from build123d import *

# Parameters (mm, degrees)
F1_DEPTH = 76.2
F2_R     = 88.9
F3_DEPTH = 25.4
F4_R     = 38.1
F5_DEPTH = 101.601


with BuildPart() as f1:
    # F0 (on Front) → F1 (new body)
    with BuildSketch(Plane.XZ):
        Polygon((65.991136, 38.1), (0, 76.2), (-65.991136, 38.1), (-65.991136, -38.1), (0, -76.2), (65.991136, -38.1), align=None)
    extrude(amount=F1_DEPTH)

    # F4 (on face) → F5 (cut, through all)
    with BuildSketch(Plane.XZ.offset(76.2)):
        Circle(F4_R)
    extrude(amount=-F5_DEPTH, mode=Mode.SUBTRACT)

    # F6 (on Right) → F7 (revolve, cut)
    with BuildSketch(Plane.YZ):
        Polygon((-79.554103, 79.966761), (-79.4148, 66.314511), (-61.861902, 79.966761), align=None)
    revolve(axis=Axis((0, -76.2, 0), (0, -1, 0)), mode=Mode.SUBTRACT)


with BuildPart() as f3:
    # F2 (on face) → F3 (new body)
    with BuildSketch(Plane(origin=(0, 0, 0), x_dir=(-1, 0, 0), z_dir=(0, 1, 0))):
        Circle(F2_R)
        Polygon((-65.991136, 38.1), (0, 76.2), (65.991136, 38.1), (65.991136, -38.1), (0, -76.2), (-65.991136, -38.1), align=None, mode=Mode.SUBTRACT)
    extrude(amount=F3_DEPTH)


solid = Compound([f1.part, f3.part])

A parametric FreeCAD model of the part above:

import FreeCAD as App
import Part
import Sketcher
from FreeCAD import Vector
Q = App.Units.Quantity

doc = App.newDocument("Part")
body = doc.addObject("PartDesign::Body", "Body")

# Sketch on XZ plane
sketch1 = body.newObject("Sketcher::SketchObject", "Sketch")
sketch1.AttachmentSupport = (doc.getObject("XZ_Plane"), [""])
sketch1.MapMode = "FlatFace"
sketch1.addGeometry(Part.LineSegment(Vector(66, 38, 0), Vector(0, 76, 0)), False)
sketch1.addGeometry(Part.LineSegment(Vector(0, 76, 0), Vector(-66, 38, 0)), False)
sketch1.addGeometry(Part.LineSegment(Vector(-66, 38, 0), Vector(-66, -38, 0)), False)
sketch1.addGeometry(Part.LineSegment(Vector(-66, -38, 0), Vector(0, -76, 0)), False)
sketch1.addGeometry(Part.LineSegment(Vector(0, -76, 0), Vector(66, -38, 0)), False)
sketch1.addGeometry(Part.LineSegment(Vector(66, -38, 0), Vector(66, 38, 0)), False)
sketch1.addConstraint(Sketcher.Constraint("Coincident", 0, 2, 1, 1))
sketch1.addConstraint(Sketcher.Constraint("Coincident", 1, 2, 2, 1))
sketch1.addConstraint(Sketcher.Constraint("Coincident", 2, 2, 3, 1))
sketch1.addConstraint(Sketcher.Constraint("Coincident", 3, 2, 4, 1))
sketch1.addConstraint(Sketcher.Constraint("Coincident", 4, 2, 5, 1))
sketch1.addConstraint(Sketcher.Constraint("Coincident", 5, 2, 0, 1))
sketch1.addConstraint(Sketcher.Constraint("Vertical", 2))
sketch1.addConstraint(Sketcher.Constraint("Vertical", 5))
sketch1.addConstraint(Sketcher.Constraint("Symmetric", 0, 2, 3, 2, -1, 1))
sketch1.addConstraint(Sketcher.Constraint("Symmetric", 1, 2, 4, 2, -1, 1))
sketch1.addConstraint(Sketcher.Constraint("PointOnObject", 0, 2, -2))
sketch1.addConstraint(Sketcher.Constraint("Parallel", 0, 3))
sketch1.addConstraint(Sketcher.Constraint("Horizontal", 2, 2, 4, 2))
sketch1.addConstraint(Sketcher.Constraint("DistanceY", 2, 2, 2, 1, Q("3 in")))
sketch1.addConstraint(Sketcher.Constraint("Distance", 0, Q("3 in")))
sketch1.addConstraint(Sketcher.Constraint("DistanceY", -1, 1, 0, 2, Q("3 in")))
pad1 = body.newObject("PartDesign::Pad", "Pad")
pad1.Profile = sketch1
pad1.Length = Q("3 in")

# Sketch on XZ plane
sketch2 = body.newObject("Sketcher::SketchObject", "Sketch001")
sketch2.AttachmentSupport = (doc.getObject("XZ_Plane"), [""])
sketch2.MapMode = "FlatFace"
sketch2.AttachmentOffset = App.Placement(Vector(0, 0, 3 * 25.4), App.Rotation())
sketch2.addGeometry(Part.Circle(Vector(0, 0, 0), Vector(0, 0, 1), 38), False)
sketch2.addConstraint(Sketcher.Constraint("Coincident", 0, 3, -1, 1))
sketch2.addConstraint(Sketcher.Constraint("Diameter", 0, Q("3 in")))
pocket1 = body.newObject("PartDesign::Pocket", "Pocket")
pocket1.Profile = sketch2
pocket1.Type = "ThroughAll"

# Sketch on YZ plane
sketch3 = body.newObject("Sketcher::SketchObject", "Sketch002")
sketch3.AttachmentSupport = (doc.getObject("YZ_Plane"), [""])
sketch3.MapMode = "FlatFace"
sketch3.addGeometry(Part.LineSegment(Vector(-80, 80, 0), Vector(-79, 66, 0)), False)
sketch3.addGeometry(Part.LineSegment(Vector(-79, 66, 0), Vector(-62, 80, 0)), False)
sketch3.addGeometry(Part.LineSegment(Vector(-62, 80, 0), Vector(-80, 80, 0)), False)
sketch3.addConstraint(Sketcher.Constraint("Coincident", 0, 2, 1, 1))
sketch3.addConstraint(Sketcher.Constraint("Coincident", 1, 2, 2, 1))
sketch3.addConstraint(Sketcher.Constraint("Coincident", 2, 2, 0, 1))
sketch3.addConstraint(Sketcher.Constraint("Horizontal", 2))
sketch3.addConstraint(Sketcher.Constraint("DistanceX", 2, 2, 2, 1, 17.692201))
sketch3.addConstraint(Sketcher.Constraint("DistanceX", 0, 2, -1, 1, 79.4148))
sketch3.addConstraint(Sketcher.Constraint("Distance", 0, 13.652961))
sketch3.addConstraint(Sketcher.Constraint("Distance", 1, 22.23709))
sketch3.addConstraint(Sketcher.Constraint("DistanceY", -1, 1, 0, 2, 66.314511))
groove = body.newObject("PartDesign::Groove", "Groove")
groove.Profile = sketch3
groove.ReferenceAxis = (sketch3, ["H_Axis"])
groove.Angle = 360
body2 = doc.addObject("PartDesign::Body", "Body001")

# Sketch on XZ plane
sketch4 = body2.newObject("Sketcher::SketchObject", "Sketch003")
sketch4.AttachmentSupport = (doc.getObject("XZ_Plane001"), [""])
sketch4.MapMode = "FlatFace"
sketch4.addGeometry(Part.Circle(Vector(0, 0, 0), Vector(0, 0, 1), 89), False)
sketch4.addGeometry(Part.LineSegment(Vector(66, -38, 0), Vector(66, 38, 0)), False)
sketch4.addGeometry(Part.LineSegment(Vector(66, 38, 0), Vector(0, 76, 0)), False)
sketch4.addGeometry(Part.LineSegment(Vector(0, 76, 0), Vector(-66, 38, 0)), False)
sketch4.addGeometry(Part.LineSegment(Vector(-66, 38, 0), Vector(-66, -38, 0)), False)
sketch4.addGeometry(Part.LineSegment(Vector(-66, -38, 0), Vector(0, -76, 0)), False)
sketch4.addGeometry(Part.LineSegment(Vector(0, -76, 0), Vector(66, -38, 0)), False)
sketch4.addConstraint(Sketcher.Constraint("Coincident", 1, 2, 2, 1))
sketch4.addConstraint(Sketcher.Constraint("Coincident", 2, 2, 3, 1))
sketch4.addConstraint(Sketcher.Constraint("Coincident", 3, 2, 4, 1))
sketch4.addConstraint(Sketcher.Constraint("Coincident", 4, 2, 5, 1))
sketch4.addConstraint(Sketcher.Constraint("Coincident", 5, 2, 6, 1))
sketch4.addConstraint(Sketcher.Constraint("Coincident", 6, 2, 1, 1))
sketch4.addConstraint(Sketcher.Constraint("Vertical", 1))
sketch4.addConstraint(Sketcher.Constraint("Vertical", 4))
sketch4.addConstraint(Sketcher.Constraint("Coincident", 0, 3, -1, 1))
sketch4.addConstraint(Sketcher.Constraint("Symmetric", 1, 2, 4, 2, -1, 1))
sketch4.addConstraint(Sketcher.Constraint("Symmetric", 2, 2, 5, 2, -1, 1))
sketch4.addConstraint(Sketcher.Constraint("PointOnObject", 2, 2, -2))
sketch4.addConstraint(Sketcher.Constraint("Parallel", 3, 6))
sketch4.addConstraint(Sketcher.Constraint("Horizontal", 1, 2, 3, 2))
sketch4.addConstraint(Sketcher.Constraint("Diameter", 0, Q("7 in")))
sketch4.addConstraint(Sketcher.Constraint("DistanceY", 1, 1, 1, 2, Q("3 in")))
sketch4.addConstraint(Sketcher.Constraint("Distance", 2, Q("3 in")))
sketch4.addConstraint(Sketcher.Constraint("DistanceY", -1, 1, 2, 2, Q("3 in")))
pad2 = body2.newObject("PartDesign::Pad", "Pad001")
pad2.Profile = sketch4
pad2.Length = Q("1 in")
pad2.Reversed = True

doc.recompute()
